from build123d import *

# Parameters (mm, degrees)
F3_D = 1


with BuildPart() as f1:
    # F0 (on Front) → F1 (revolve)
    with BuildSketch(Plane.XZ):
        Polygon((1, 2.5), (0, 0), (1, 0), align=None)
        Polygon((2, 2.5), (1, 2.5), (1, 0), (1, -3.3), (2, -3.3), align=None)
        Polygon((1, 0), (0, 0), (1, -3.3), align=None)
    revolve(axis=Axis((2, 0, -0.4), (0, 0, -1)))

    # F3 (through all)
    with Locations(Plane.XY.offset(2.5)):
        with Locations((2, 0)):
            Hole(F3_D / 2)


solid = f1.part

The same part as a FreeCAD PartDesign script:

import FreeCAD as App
import Part
import Sketcher
from FreeCAD import Vector


def add_polygon(sketch, points):
    """Adds a closed chain of lines whose ends are joined by coincident constraints."""
    first, n = sketch.GeometryCount, len(points)
    for a, b in zip(points, points[1:] + points[:1]):
        sketch.addGeometry(Part.LineSegment(App.Vector(*a, 0), App.Vector(*b, 0)), False)
    for i in range(n):
        sketch.addConstraint(Sketcher.Constraint("Coincident", first + i, 2, first + (i + 1) % n, 1))

doc = App.newDocument("Part")
params = doc.addObject("Spreadsheet::Sheet", "Params")
for row, (alias, value) in enumerate([
    ("sketch1_width", "1 mm"),
    ("sketch1_height", "5.8 mm"),
    ("revolution_angle", "360 deg"),
    ("sketch2_diameter", "1 mm"),
    ("hole_diameter", "1 mm"),
], start=1):
    params.set(f"A{row}", alias)
    params.set(f"B{row}", "=" + value)
    params.setAlias(f"B{row}", alias)

body = doc.addObject("PartDesign::Body", "Body")

# Sketch on XZ plane
sketch1 = body.newObject("Sketcher::SketchObject", "Sketch")
sketch1.AttachmentSupport = (doc.getObject("XZ_Plane"), [""])
sketch1.MapMode = "FlatFace"
add_polygon(sketch1, [(1, 2.5), (0, 0), (1, -3.3), (2, -3.3), (2, 2.5)])  # lines 0-4
sketch1.addGeometry(Part.LineSegment(Vector(2, 2.5, 0), Vector(2, -3.3, 0)), True)  # axis
sketch1.addConstraint([
    Sketcher.Constraint("Horizontal", 2),
    Sketcher.Constraint("Vertical", 3),
    Sketcher.Constraint("Horizontal", 4),
    Sketcher.Constraint("Vertical", 5),
    Sketcher.Constraint("Coincident", 0, 2, -1, 1),
    Sketcher.Constraint("Coincident", 5, 1, 3, 2),
    Sketcher.Constraint("Horizontal", 1, 2, 5, 2),
    Sketcher.Constraint("Vertical", 1, 2, 4, 2),
    Sketcher.Constraint("DistanceX", 2, 1, 2, 2, 1.0),
    Sketcher.Constraint("DistanceY", 3, 1, 3, 2, 5.8),
    Sketcher.Constraint("DistanceX", -1, 1, 1, 2, 1.0),
    Sketcher.Constraint("DistanceY", 1, 2, -1, 1, 3.3),
])
sketch1.setExpression("Constraints[13]", "Params.sketch1_width")
sketch1.setExpression("Constraints[14]", "Params.sketch1_height")
revolution = body.newObject("PartDesign::Revolution", "Revolution")
revolution.Profile = sketch1
revolution.ReferenceAxis = (sketch1, ["Axis0"])
revolution.setExpression("Angle", "Params.revolution_angle")

# Sketch on XY plane
sketch2 = body.newObject("Sketcher::SketchObject", "Sketch001")
sketch2.AttachmentSupport = (doc.getObject("XY_Plane"), [""])
sketch2.MapMode = "FlatFace"
sketch2.AttachmentOffset = App.Placement(Vector(0, 0, 2.5), App.Rotation())
sketch2.addGeometry(Part.Circle(Vector(2, 0, 0), Vector(0, 0, 1), 0.5), False)
sketch2.addConstraint([
    Sketcher.Constraint("PointOnObject", 0, 3, -1),
    Sketcher.Constraint("Diameter", 0, 1.0),
    Sketcher.Constraint("DistanceX", -1, 1, 0, 3, 2.0),
])
sketch2.setExpression("Constraints[1]", "Params.sketch2_diameter")
doc.recompute()
hole = body.newObject("PartDesign::Hole", "Hole")
hole.Profile = sketch2
hole.ThreadType = "None"
hole.setExpression("Diameter", "Params.hole_diameter")
hole.DepthType = "ThroughAll"

doc.recompute()
